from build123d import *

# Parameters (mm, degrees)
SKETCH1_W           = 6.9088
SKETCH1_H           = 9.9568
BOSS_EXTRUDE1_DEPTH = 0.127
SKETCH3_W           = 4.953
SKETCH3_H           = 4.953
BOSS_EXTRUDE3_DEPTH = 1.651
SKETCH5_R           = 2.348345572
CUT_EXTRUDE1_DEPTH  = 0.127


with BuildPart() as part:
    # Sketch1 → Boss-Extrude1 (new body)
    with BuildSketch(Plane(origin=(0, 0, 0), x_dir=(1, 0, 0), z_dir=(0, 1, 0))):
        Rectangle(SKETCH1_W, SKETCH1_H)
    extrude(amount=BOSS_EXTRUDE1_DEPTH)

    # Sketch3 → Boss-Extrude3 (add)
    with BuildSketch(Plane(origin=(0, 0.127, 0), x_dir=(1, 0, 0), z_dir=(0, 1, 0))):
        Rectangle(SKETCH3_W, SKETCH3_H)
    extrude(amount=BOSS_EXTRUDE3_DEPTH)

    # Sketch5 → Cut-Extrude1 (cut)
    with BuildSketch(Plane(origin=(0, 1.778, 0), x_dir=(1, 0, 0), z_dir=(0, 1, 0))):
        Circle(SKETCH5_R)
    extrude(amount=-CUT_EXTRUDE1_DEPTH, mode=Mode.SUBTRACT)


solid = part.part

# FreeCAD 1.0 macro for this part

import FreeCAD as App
import Part
import Sketcher
Q = App.Units.Quantity

doc = App.newDocument("Part")
body = doc.addObject("PartDesign::Body", "Body")

sketch1 = doc.addObject("Sketcher::SketchObject", "Sketch")
body.addObject(sketch1)
sketch1.AttachmentSupport = (doc.XZ_Plane, [""])
sketch1.MapMode = "FlatFace"
sketch1.addGeometry([
    Part.LineSegment(App.Vector(-3.4544, -4.9784, 0), App.Vector(-3.4544, 4.9784, 0)),
    Part.LineSegment(App.Vector(-3.4544, 4.9784, 0), App.Vector(3.4544, 4.9784, 0)),
    Part.LineSegment(App.Vector(3.4544, 4.9784, 0), App.Vector(3.4544, -4.9784, 0)),
    Part.LineSegment(App.Vector(3.4544, -4.9784, 0), App.Vector(-3.4544, -4.9784, 0)),
], False)
sketch1.addConstraint([
    Sketcher.Constraint("Coincident", 0, 2, 1, 1),
    Sketcher.Constraint("Coincident", 1, 2, 2, 1),
    Sketcher.Constraint("Coincident", 2, 2, 3, 1),
    Sketcher.Constraint("Coincident", 3, 2, 0, 1),
    Sketcher.Constraint("Vertical", 0),
    Sketcher.Constraint("Horizontal", 1),
    Sketcher.Constraint("Vertical", 2),
    Sketcher.Constraint("Horizontal", 3),
    Sketcher.Constraint("Symmetric", 0, 2, 2, 2, -1, 1),
    Sketcher.Constraint("DistanceX", 1, 1, 1, 2, Q("0.272 in")),
    Sketcher.Constraint("DistanceY", 0, 1, 0, 2, Q("0.392 in")),
])
pad1 = doc.addObject("PartDesign::Pad", "Pad")
body.addObject(pad1)
pad1.Profile = sketch1
pad1.Length = Q("0.005 in")
pad1.Reversed = True

sketch2 = doc.addObject("Sketcher::SketchObject", "Sketch001")
body.addObject(sketch2)
sketch2.AttachmentSupport = (doc.XZ_Plane, [""])
sketch2.MapMode = "FlatFace"
sketch2.AttachmentOffset = App.Placement(App.Vector(0, 0, -0.005 * 25.4), App.Rotation())
sketch2.addGeometry([
    Part.LineSegment(App.Vector(-2.4765, -2.4765, 0), App.Vector(-2.4765, 2.4765, 0)),
    Part.LineSegment(App.Vector(-2.4765, 2.4765, 0), App.Vector(2.4765, 2.4765, 0)),
    Part.LineSegment(App.Vector(2.4765, 2.4765, 0), App.Vector(2.4765, -2.4765, 0)),
    Part.LineSegment(App.Vector(2.4765, -2.4765, 0), App.Vector(-2.4765, -2.4765, 0)),
], False)
sketch2.addConstraint([
    Sketcher.Constraint("Coincident", 0, 2, 1, 1),
    Sketcher.Constraint("Coincident", 1, 2, 2, 1),
    Sketcher.Constraint("Coincident", 2, 2, 3, 1),
    Sketcher.Constraint("Coincident", 3, 2, 0, 1),
    Sketcher.Constraint("Vertical", 0),
    Sketcher.Constraint("Horizontal", 1),
    Sketcher.Constraint("Vertical", 2),
    Sketcher.Constraint("Horizontal", 3),
    Sketcher.Constraint("Symmetric", 0, 2, 2, 2, -1, 1),
    Sketcher.Constraint("Equal", 3, 0),
    Sketcher.Constraint("DistanceX", 1, 1, 1, 2, Q("0.195 in")),
])
pad2 = doc.addObject("PartDesign::Pad", "Pad001")
body.addObject(pad2)
pad2.Profile = sketch2
pad2.Length = Q("0.065 in")
pad2.Reversed = True

sketch3 = doc.addObject("Sketcher::SketchObject", "Sketch002")
body.addObject(sketch3)
sketch3.AttachmentSupport = (doc.XZ_Plane, [""])
sketch3.MapMode = "FlatFace"
sketch3.AttachmentOffset = App.Placement(App.Vector(0, 0, -0.07 * 25.4), App.Rotation())
sketch3.addGeometry(Part.Circle(App.Vector(0, 0, 0), App.Vector(0, 0, 1), 2.348346), False)
sketch3.addConstraint([
    Sketcher.Constraint("Coincident", 0, 3, -1, 1),
    Sketcher.Constraint("Diameter", 0, Q("4.696691 mm")),
])
pocket1 = doc.addObject("PartDesign::Pocket", "Pocket")
body.addObject(pocket1)
pocket1.Profile = sketch3
pocket1.Length = Q("0.005 in")
pocket1.Reversed = True

doc.recompute()
